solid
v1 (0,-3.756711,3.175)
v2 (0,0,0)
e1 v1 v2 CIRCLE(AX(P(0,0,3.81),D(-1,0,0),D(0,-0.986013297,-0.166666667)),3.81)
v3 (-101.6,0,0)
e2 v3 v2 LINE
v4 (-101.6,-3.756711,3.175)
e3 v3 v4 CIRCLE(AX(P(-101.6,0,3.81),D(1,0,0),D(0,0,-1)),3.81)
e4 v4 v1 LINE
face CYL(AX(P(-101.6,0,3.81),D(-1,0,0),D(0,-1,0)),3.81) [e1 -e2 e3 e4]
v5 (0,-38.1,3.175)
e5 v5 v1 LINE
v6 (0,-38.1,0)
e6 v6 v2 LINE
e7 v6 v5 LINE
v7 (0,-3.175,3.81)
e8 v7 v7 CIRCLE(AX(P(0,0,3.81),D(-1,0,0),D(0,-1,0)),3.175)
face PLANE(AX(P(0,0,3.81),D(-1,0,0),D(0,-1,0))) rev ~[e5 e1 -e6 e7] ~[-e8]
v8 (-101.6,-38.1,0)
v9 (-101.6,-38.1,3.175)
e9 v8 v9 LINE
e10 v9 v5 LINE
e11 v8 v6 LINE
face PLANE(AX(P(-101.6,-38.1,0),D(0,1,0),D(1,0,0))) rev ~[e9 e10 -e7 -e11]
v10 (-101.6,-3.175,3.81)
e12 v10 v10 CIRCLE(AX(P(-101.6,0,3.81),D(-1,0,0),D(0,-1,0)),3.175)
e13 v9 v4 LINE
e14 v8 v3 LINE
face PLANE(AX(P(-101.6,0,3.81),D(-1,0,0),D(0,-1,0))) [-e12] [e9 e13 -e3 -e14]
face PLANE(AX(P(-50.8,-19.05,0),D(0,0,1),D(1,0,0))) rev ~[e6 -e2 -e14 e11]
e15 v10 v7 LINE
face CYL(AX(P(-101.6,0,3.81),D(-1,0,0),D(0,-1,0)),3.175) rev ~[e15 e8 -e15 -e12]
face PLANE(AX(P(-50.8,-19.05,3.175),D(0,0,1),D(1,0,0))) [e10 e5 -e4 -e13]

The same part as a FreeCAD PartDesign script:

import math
import FreeCAD as App
import Part
import Sketcher
from FreeCAD import Vector
Q = App.Units.Quantity


def add_polygon(sketch, points):
    """Adds a closed chain of lines whose ends are joined by coincident constraints."""
    first, n = sketch.GeometryCount, len(points)
    for a, b in zip(points, points[1:] + points[:1]):
        sketch.addGeometry(Part.LineSegment(App.Vector(*a, 0), App.Vector(*b, 0)), False)
    for i in range(n):
        sketch.addConstraint(Sketcher.Constraint("Coincident", first + i, 2, first + (i + 1) % n, 1))

doc = App.newDocument("Part")
body = doc.addObject("PartDesign::Body", "Body")

sketch1 = doc.addObject("Sketcher::SketchObject", "Sketch")
body.addObject(sketch1)
sketch1.AttachmentSupport = (doc.XY_Plane, [""])
sketch1.MapMode = "FlatFace"
add_polygon(sketch1, [(-102, 0), (-102, -38), (0, -38), (0, 0)])
sketch1.addConstraint(Sketcher.Constraint("Vertical", 0))
sketch1.addConstraint(Sketcher.Constraint("Horizontal", 1))
sketch1.addConstraint(Sketcher.Constraint("Vertical", 2))
sketch1.addConstraint(Sketcher.Constraint("Horizontal", 3))
sketch1.addConstraint(Sketcher.Constraint("Coincident", 2, 2, -1, 1))
sketch1.addConstraint(Sketcher.Constraint("DistanceX", 1, 1, 1, 2, Q("4 in")))
sketch1.addConstraint(Sketcher.Constraint("DistanceY", 0, 2, 0, 1, Q("1.5 in")))
pad1 = doc.addObject("PartDesign::Pad", "Pad")
body.addObject(pad1)
pad1.Profile = sketch1
pad1.Length = Q("0.125 in")

sketch2 = doc.addObject("Sketcher::SketchObject", "Sketch001")
body.addObject(sketch2)
sketch2.AttachmentSupport = (doc.YZ_Plane, [""])
sketch2.MapMode = "FlatFace"
sketch2.AttachmentOffset = App.Placement(Vector(0, 0, -4 * 25.4), App.Rotation())
sketch2.addGeometry(Part.ArcOfCircle(Part.Circle(Vector(0, 3.8, 0), Vector(0, 0, 1), 3.8), math.radians(-180), math.radians(-170.41)), False)
sketch2.addGeometry(Part.ArcOfCircle(Part.Circle(Vector(0, 3.8, 0), Vector(0, 0, 1), 3.8), math.radians(-90), math.radians(180)), False)
sketch2.addGeometry(Part.ArcOfCircle(Part.Circle(Vector(0, 3.8, 0), Vector(0, 0, 1), 3.8), math.radians(-170), math.radians(-90)), False)
sketch2.addGeometry(Part.ArcOfCircle(Part.Circle(Vector(0, 3.8, 0), Vector(0, 0, 1), 3.2), math.radians(-90), math.radians(180)), False)
sketch2.addGeometry(Part.ArcOfCircle(Part.Circle(Vector(0, 3.8, 0), Vector(0, 0, 1), 3.2), math.radians(180), math.radians(191.54)), False)
sketch2.addGeometry(Part.LineSegment(Vector(-3.1, 3.2, 0), Vector(0, 3.2, 0)), False)
sketch2.addGeometry(Part.LineSegment(Vector(0, 3.2, 0), Vector(0, 0.6, 0)), False)
sketch2.addConstraint(Sketcher.Constraint("Tangent", 0, 1, 1, 2))
sketch2.addConstraint(Sketcher.Constraint("Tangent", 1, 1, 2, 2))
sketch2.addConstraint(Sketcher.Constraint("Tangent", 2, 1, 0, 2))
sketch2.addConstraint(Sketcher.Constraint("Tangent", 3, 2, 4, 1))
sketch2.addConstraint(Sketcher.Constraint("Coincident", 4, 2, 5, 1))
sketch2.addConstraint(Sketcher.Constraint("Coincident", 5, 2, 6, 1))
sketch2.addConstraint(Sketcher.Constraint("Coincident", 6, 2, 3, 1))
sketch2.addConstraint(Sketcher.Constraint("Horizontal", 5))
sketch2.addConstraint(Sketcher.Constraint("Vertical", 6))
sketch2.addConstraint(Sketcher.Constraint("Coincident", 1, 1, -1, 1))
sketch2.addConstraint(Sketcher.Constraint("Coincident", 3, 3, 0, 3))
sketch2.addConstraint(Sketcher.Constraint("Equal", 3, 4))
sketch2.addConstraint(Sketcher.Constraint("PointOnObject", 0, 3, -2))
sketch2.addConstraint(Sketcher.Constraint("PointOnObject", 5, 2, -2))
sketch2.addConstraint(Sketcher.Constraint("Horizontal", 4, 3, 0, 1))
sketch2.addConstraint(Sketcher.Constraint("Horizontal", 0, 1, 3, 2))
sketch2.addConstraint(Sketcher.Constraint("Horizontal", 2, 1, 4, 2))
sketch2.addConstraint(Sketcher.Constraint("Radius", 0, Q("0.15 in")))
sketch2.addConstraint(Sketcher.Constraint("DistanceY", 6, 2, 6, 1, Q("0.1 in")))
sketch2.addConstraint(Sketcher.Constraint("Radius", 3, Q("0.125 in")))
pocket1 = doc.addObject("PartDesign::Pocket", "Pocket")
body.addObject(pocket1)
pocket1.Profile = sketch2
pocket1.Length = Q("10 in")
pocket1.Reversed = True

sketch3 = doc.addObject("Sketcher::SketchObject", "Sketch002")
body.addObject(sketch3)
sketch3.AttachmentSupport = (doc.YZ_Plane, [""])
sketch3.MapMode = "FlatFace"
sketch3.AttachmentOffset = App.Placement(Vector(0, 0, -4 * 25.4), App.Rotation())
sketch3.addGeometry(Part.Circle(Vector(0, 3.8, 0), Vector(0, 0, 1), 3.8), False)
sketch3.addGeometry(Part.Circle(Vector(0, 3.8, 0), Vector(0, 0, 1), 3.2), False)
sketch3.addConstraint(Sketcher.Constraint("Coincident", 1, 3, 0, 3))
sketch3.addConstraint(Sketcher.Constraint("PointOnObject", 0, 3, -2))
sketch3.addConstraint(Sketcher.Constraint("Diameter", 0, Q("0.3 in")))
sketch3.addConstraint(Sketcher.Constraint("Diameter", 1, Q("0.25 in")))
sketch3.addConstraint(Sketcher.Constraint("DistanceY", -1, 1, 0, 3, Q("0.15 in")))
pad2 = doc.addObject("PartDesign::Pad", "Pad001")
body.addObject(pad2)
pad2.Profile = sketch3
pad2.Length = Q("4 in")

doc.recompute()
